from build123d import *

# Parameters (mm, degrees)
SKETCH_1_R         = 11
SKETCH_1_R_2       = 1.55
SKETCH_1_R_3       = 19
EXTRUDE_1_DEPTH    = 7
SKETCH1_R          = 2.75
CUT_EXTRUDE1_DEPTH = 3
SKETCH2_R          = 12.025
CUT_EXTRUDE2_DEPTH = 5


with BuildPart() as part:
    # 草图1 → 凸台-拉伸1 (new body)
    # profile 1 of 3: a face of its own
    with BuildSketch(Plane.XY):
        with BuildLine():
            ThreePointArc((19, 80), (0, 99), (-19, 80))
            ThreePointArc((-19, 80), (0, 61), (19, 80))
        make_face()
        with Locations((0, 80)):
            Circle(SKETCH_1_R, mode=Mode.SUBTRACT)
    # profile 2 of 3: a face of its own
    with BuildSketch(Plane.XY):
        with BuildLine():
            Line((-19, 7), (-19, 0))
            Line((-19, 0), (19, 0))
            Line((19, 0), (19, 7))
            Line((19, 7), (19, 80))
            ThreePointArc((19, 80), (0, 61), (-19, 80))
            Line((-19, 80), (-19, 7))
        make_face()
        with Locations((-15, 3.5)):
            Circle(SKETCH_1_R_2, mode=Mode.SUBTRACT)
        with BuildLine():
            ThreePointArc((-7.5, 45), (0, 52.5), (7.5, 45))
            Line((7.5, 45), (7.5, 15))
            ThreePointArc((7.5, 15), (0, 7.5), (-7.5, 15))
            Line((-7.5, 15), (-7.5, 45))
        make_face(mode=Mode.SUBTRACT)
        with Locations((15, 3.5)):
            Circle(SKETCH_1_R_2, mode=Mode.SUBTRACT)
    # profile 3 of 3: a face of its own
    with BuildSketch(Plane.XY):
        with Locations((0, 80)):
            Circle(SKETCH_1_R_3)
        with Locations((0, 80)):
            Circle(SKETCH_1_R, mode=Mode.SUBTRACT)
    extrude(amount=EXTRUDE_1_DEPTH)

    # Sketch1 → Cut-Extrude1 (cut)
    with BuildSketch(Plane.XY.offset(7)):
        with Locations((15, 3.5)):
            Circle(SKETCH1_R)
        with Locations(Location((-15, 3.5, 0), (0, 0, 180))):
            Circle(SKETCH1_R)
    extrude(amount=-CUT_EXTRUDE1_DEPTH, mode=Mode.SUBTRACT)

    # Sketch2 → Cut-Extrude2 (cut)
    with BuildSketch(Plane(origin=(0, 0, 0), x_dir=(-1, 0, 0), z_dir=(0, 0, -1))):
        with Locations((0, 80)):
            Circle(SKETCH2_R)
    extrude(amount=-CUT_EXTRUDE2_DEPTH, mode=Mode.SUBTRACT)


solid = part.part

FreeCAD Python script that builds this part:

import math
import FreeCAD as App
import Part
import Sketcher

V = App.Vector

doc = App.newDocument("Part")
body = doc.addObject("PartDesign::Body", "Body")

# Sketch on XY plane
sketch1 = body.newObject("Sketcher::SketchObject", "Sketch")
sketch1.AttachmentSupport = (doc.getObject("XY_Plane"), [""])
sketch1.MapMode = "FlatFace"
sketch1.addGeometry(Part.ArcOfCircle(Part.Circle(V(0, 80, 0), V(0, 0, 1), 19), math.radians(0), math.radians(180)), False)
sketch1.addGeometry(Part.LineSegment(V(-19, 80, 0), V(-19, 0, 0)), False)
sketch1.addGeometry(Part.LineSegment(V(-19, 0, 0), V(19, 0, 0)), False)
sketch1.addGeometry(Part.LineSegment(V(19, 0, 0), V(19, 80, 0)), False)
sketch1.addGeometry(Part.Circle(V(0, 80, 0), V(0, 0, 1), 11), False)
sketch1.addGeometry(Part.LineSegment(V(7.5, 45, 0), V(7.5, 15, 0)), False)
sketch1.addGeometry(Part.ArcOfCircle(Part.Circle(V(0, 15, 0), V(0, 0, 1), 7.5), math.radians(180), math.radians(360)), False)
sketch1.addGeometry(Part.LineSegment(V(-7.5, 15, 0), V(-7.5, 45, 0)), False)
sketch1.addGeometry(Part.ArcOfCircle(Part.Circle(V(0, 45, 0), V(0, 0, 1), 7.5), math.radians(0), math.radians(180)), False)
sketch1.addGeometry(Part.Circle(V(-15, 3.5, 0), V(0, 0, 1), 1.55), False)
sketch1.addGeometry(Part.Circle(V(15, 3.5, 0), V(0, 0, 1), 1.55), False)
sketch1.addConstraint(Sketcher.Constraint("Tangent", 0, 2, 1, 1))
sketch1.addConstraint(Sketcher.Constraint("Coincident", 1, 2, 2, 1))
sketch1.addConstraint(Sketcher.Constraint("Coincident", 2, 2, 3, 1))
sketch1.addConstraint(Sketcher.Constraint("Tangent", 3, 2, 0, 1))
sketch1.addConstraint(Sketcher.Constraint("Tangent", 5, 2, 6, 2))
sketch1.addConstraint(Sketcher.Constraint("Tangent", 6, 1, 7, 1))
sketch1.addConstraint(Sketcher.Constraint("Tangent", 7, 2, 8, 2))
sketch1.addConstraint(Sketcher.Constraint("Tangent", 8, 1, 5, 1))
sketch1.addConstraint(Sketcher.Constraint("Vertical", 1))
sketch1.addConstraint(Sketcher.Constraint("Horizontal", 2))
sketch1.addConstraint(Sketcher.Constraint("Vertical", 3))
sketch1.addConstraint(Sketcher.Constraint("Vertical", 5))
sketch1.addConstraint(Sketcher.Constraint("Vertical", 7))
sketch1.addConstraint(Sketcher.Constraint("Coincident", 4, 3, 0, 3))
sketch1.addConstraint(Sketcher.Constraint("Equal", 9, 10))
sketch1.addConstraint(Sketcher.Constraint("Symmetric", 1, 2, 2, 2, -1, 1))
sketch1.addConstraint(Sketcher.Constraint("Symmetric", 9, 3, 10, 3, -2))
sketch1.addConstraint(Sketcher.Constraint("PointOnObject", 6, 3, -2))
sketch1.addConstraint(Sketcher.Constraint("Diameter", 4, 22.0))
sketch1.addConstraint(Sketcher.Constraint("Radius", 0, 19.0))
sketch1.addConstraint(Sketcher.Constraint("Diameter", 9, 3.1))
sketch1.addConstraint(Sketcher.Constraint("Radius", 6, 7.5))
sketch1.addConstraint(Sketcher.Constraint("DistanceY", 1, 2, 1, 1, 80.0))
sketch1.addConstraint(Sketcher.Constraint("DistanceY", 5, 2, 5, 1, 30.0))
sketch1.addConstraint(Sketcher.Constraint("DistanceY", -1, 1, 6, 3, 15.0))
sketch1.addConstraint(Sketcher.Constraint("DistanceX", 9, 3, -1, 1, 15.0))
sketch1.addConstraint(Sketcher.Constraint("DistanceY", -1, 1, 9, 3, 3.5))
pad1 = body.newObject("PartDesign::Pad", "Pad")
pad1.Profile = sketch1
pad1.Length = 7

# Sketch on XY plane
sketch2 = body.newObject("Sketcher::SketchObject", "Sketch001")
sketch2.AttachmentSupport = (doc.getObject("XY_Plane"), [""])
sketch2.MapMode = "FlatFace"
sketch2.AttachmentOffset = App.Placement(V(0, 0, 7), App.Rotation())
sketch2.addGeometry(Part.Circle(V(15, 3.5, 0), V(0, 0, 1), 2.75), False)
sketch2.addGeometry(Part.Circle(V(-15, 3.5, 0), V(0, 0, 1), 2.75), False)
sketch2.addConstraint(Sketcher.Constraint("Equal", 0, 1))
sketch2.addConstraint(Sketcher.Constraint("Symmetric", 0, 3, 1, 3, -2))
sketch2.addConstraint(Sketcher.Constraint("Diameter", 0, 5.5))
sketch2.addConstraint(Sketcher.Constraint("DistanceX", -1, 1, 0, 3, 15.0))
sketch2.addConstraint(Sketcher.Constraint("DistanceY", -1, 1, 0, 3, 3.5))
pocket1 = body.newObject("PartDesign::Pocket", "Pocket")
pocket1.Profile = sketch2
pocket1.Length = 3

# Sketch on XY plane
sketch3 = body.newObject("Sketcher::SketchObject", "Sketch002")
sketch3.AttachmentSupport = (doc.getObject("XY_Plane"), [""])
sketch3.MapMode = "FlatFace"
sketch3.addGeometry(Part.Circle(V(0, 80, 0), V(0, 0, 1), 12.025), False)
sketch3.addConstraint(Sketcher.Constraint("PointOnObject", 0, 3, -2))
sketch3.addConstraint(Sketcher.Constraint("Diameter", 0, 24.05))
sketch3.addConstraint(Sketcher.Constraint("DistanceY", -1, 1, 0, 3, 80.0))
pocket2 = body.newObject("PartDesign::Pocket", "Pocket001")
pocket2.Profile = sketch3
pocket2.Length = 5
pocket2.Reversed = True

doc.recompute()
